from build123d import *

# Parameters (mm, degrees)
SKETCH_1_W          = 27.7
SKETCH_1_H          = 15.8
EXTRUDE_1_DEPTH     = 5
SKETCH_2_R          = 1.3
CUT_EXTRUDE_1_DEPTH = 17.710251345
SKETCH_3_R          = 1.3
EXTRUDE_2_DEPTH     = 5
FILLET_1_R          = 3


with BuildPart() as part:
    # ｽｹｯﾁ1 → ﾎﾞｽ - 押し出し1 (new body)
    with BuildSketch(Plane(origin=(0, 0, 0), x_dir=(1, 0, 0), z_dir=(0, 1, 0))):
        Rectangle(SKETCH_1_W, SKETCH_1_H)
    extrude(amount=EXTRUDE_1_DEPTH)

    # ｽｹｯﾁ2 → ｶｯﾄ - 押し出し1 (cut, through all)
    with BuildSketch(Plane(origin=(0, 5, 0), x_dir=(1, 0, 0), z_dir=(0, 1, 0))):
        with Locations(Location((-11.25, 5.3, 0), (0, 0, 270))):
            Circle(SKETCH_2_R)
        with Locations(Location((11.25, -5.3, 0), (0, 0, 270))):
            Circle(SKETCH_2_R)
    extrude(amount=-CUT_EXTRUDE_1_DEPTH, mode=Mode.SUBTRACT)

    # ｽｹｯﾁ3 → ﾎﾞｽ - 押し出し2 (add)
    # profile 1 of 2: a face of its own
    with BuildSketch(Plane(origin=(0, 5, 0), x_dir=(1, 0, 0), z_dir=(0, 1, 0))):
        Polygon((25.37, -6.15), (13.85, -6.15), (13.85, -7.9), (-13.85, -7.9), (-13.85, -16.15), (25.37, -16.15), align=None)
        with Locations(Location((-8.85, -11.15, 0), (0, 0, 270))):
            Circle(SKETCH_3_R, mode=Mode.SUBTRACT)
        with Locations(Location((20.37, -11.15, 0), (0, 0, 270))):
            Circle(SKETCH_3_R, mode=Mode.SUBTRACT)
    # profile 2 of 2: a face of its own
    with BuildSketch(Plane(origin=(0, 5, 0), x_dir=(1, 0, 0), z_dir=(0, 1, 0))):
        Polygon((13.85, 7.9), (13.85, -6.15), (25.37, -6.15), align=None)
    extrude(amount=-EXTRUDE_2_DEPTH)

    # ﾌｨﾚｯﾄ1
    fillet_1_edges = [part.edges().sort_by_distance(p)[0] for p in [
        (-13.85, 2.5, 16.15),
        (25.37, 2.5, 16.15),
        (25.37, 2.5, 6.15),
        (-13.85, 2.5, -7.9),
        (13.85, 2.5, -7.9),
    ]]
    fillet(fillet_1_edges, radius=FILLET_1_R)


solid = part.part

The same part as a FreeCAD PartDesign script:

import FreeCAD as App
import Part
import Sketcher
Q = App.Units.Quantity


def edges_at(feature, points):
    """Names of the edges that pass closest to the given points."""
    edges = feature.Shape.Edges
    near = lambda p: min(range(len(edges)), key=lambda i: edges[i].distToShape(Part.Vertex(*p))[0])
    return sorted({f"Edge{near(p) + 1}" for p in points})


def add_polygon(sketch, points):
    """Adds a closed chain of lines whose ends are joined by coincident constraints."""
    first, n = sketch.GeometryCount, len(points)
    for a, b in zip(points, points[1:] + points[:1]):
        sketch.addGeometry(Part.LineSegment(App.Vector(*a, 0), App.Vector(*b, 0)), False)
    for i in range(n):
        sketch.addConstraint(Sketcher.Constraint("Coincident", first + i, 2, first + (i + 1) % n, 1))

doc = App.newDocument("Part")
body = doc.addObject("PartDesign::Body", "Body")

# Sketch on XZ plane
sketch1 = body.newObject("Sketcher::SketchObject", "Sketch")
sketch1.AttachmentSupport = (doc.getObject("XZ_Plane"), [""])
sketch1.MapMode = "FlatFace"
add_polygon(sketch1, [(-14, -8), (-14, 8), (14, 8), (14, -8)])  # lines 0-3
sketch1.addConstraint([
    Sketcher.Constraint("Vertical", 0),
    Sketcher.Constraint("Horizontal", 1),
    Sketcher.Constraint("Vertical", 2),
    Sketcher.Constraint("Horizontal", 3),
    Sketcher.Constraint("Symmetric", 0, 2, 2, 2, -1, 1),
    Sketcher.Constraint("DistanceX", 1, 1, 1, 2, Q("27.7 mm")),
    Sketcher.Constraint("DistanceY", 0, 1, 0, 2, Q("15.8 mm")),
])
pad1 = body.newObject("PartDesign::Pad", "Pad")
pad1.Profile = sketch1
pad1.Length = 5
pad1.Reversed = True

# Sketch on XZ plane
sketch2 = body.newObject("Sketcher::SketchObject", "Sketch001")
sketch2.AttachmentSupport = (doc.getObject("XZ_Plane"), [""])
sketch2.MapMode = "FlatFace"
sketch2.AttachmentOffset = App.Placement(App.Vector(0, 0, -5), App.Rotation())
sketch2.addGeometry([
    Part.Circle(App.Vector(-11.2, -5.3, 0), App.Vector(0, 0, 1), 1.3),
    Part.Circle(App.Vector(11.2, 5.3, 0), App.Vector(0, 0, 1), 1.3),
], False)
sketch2.addConstraint([
    Sketcher.Constraint("Equal", 0, 1),
    Sketcher.Constraint("Symmetric", 0, 3, 1, 3, -1, 1),
    Sketcher.Constraint("Diameter", 0, Q("2.6 mm")),
    Sketcher.Constraint("DistanceY", 0, 3, -1, 1, Q("5.3 mm")),
    Sketcher.Constraint("DistanceX", 0, 3, 1, 3, Q("22.5 mm")),
])
pocket1 = body.newObject("PartDesign::Pocket", "Pocket")
pocket1.Profile = sketch2
pocket1.Type = "ThroughAll"
pocket1.Reversed = True

# Sketch on XZ plane
sketch3 = body.newObject("Sketcher::SketchObject", "Sketch002")
sketch3.AttachmentSupport = (doc.getObject("XZ_Plane"), [""])
sketch3.MapMode = "FlatFace"
sketch3.AttachmentOffset = App.Placement(App.Vector(0, 0, -5), App.Rotation())
add_polygon(sketch3, [(25.4, 16.1), (25.4, 6.2), (13.8, -7.9), (13.8, 7.9), (-13.8, 7.9), (-13.8, 16.1)])  # lines 0-5
sketch3.addGeometry(Part.Circle(App.Vector(-8.8, 11.2, 0), App.Vector(0, 0, 1), 1.3), False)  # 6
sketch3.addGeometry(Part.Circle(App.Vector(20.4, 11.2, 0), App.Vector(0, 0, 1), 1.3), False)  # 7
sketch3.addConstraint([
    Sketcher.Constraint("Vertical", 0),
    Sketcher.Constraint("Vertical", 2),
    Sketcher.Constraint("Horizontal", 3),
    Sketcher.Constraint("Vertical", 4),
    Sketcher.Constraint("Horizontal", 5),
    Sketcher.Constraint("Equal", 6, 7),
    Sketcher.Constraint("Symmetric", 1, 2, 3, 2, -1, 1),
    Sketcher.Constraint("Horizontal", 6, 3, 7, 3),
    Sketcher.Constraint("Diameter", 6, Q("2.6 mm")),
    Sketcher.Constraint("DistanceY", 0, 2, 0, 1, Q("10 mm")),
    Sketcher.Constraint("DistanceX", 3, 2, 3, 1, Q("27.7 mm")),
    Sketcher.Constraint("DistanceY", 2, 1, 2, 2, Q("15.8 mm")),
    Sketcher.Constraint("DistanceX", 7, 3, 0, 2, Q("5 mm")),
    Sketcher.Constraint("DistanceY", 0, 2, 7, 3, Q("5 mm")),
    Sketcher.Constraint("DistanceX", 3, 2, 6, 3, Q("5 mm")),
    Sketcher.Constraint("DistanceX", 5, 1, 5, 2, Q("39.22 mm")),
    Sketcher.Constraint("DistanceY", 4, 1, 4, 2, Q("8.25 mm")),
])
pad2 = body.newObject("PartDesign::Pad", "Pad001")
pad2.Profile = sketch3
pad2.Length = 5
doc.recompute()

fillet = body.newObject("PartDesign::Fillet", "Fillet")
fillet.Base = (pad2, edges_at(pad2, [
    (-13.85, 2.5, 16.15),
    (25.37, 2.5, 16.15),
    (25.37, 2.5, 6.15),
    (-13.85, 2.5, -7.9),
    (13.85, 2.5, -7.9),
]))
fillet.Radius = 3

doc.recompute()
